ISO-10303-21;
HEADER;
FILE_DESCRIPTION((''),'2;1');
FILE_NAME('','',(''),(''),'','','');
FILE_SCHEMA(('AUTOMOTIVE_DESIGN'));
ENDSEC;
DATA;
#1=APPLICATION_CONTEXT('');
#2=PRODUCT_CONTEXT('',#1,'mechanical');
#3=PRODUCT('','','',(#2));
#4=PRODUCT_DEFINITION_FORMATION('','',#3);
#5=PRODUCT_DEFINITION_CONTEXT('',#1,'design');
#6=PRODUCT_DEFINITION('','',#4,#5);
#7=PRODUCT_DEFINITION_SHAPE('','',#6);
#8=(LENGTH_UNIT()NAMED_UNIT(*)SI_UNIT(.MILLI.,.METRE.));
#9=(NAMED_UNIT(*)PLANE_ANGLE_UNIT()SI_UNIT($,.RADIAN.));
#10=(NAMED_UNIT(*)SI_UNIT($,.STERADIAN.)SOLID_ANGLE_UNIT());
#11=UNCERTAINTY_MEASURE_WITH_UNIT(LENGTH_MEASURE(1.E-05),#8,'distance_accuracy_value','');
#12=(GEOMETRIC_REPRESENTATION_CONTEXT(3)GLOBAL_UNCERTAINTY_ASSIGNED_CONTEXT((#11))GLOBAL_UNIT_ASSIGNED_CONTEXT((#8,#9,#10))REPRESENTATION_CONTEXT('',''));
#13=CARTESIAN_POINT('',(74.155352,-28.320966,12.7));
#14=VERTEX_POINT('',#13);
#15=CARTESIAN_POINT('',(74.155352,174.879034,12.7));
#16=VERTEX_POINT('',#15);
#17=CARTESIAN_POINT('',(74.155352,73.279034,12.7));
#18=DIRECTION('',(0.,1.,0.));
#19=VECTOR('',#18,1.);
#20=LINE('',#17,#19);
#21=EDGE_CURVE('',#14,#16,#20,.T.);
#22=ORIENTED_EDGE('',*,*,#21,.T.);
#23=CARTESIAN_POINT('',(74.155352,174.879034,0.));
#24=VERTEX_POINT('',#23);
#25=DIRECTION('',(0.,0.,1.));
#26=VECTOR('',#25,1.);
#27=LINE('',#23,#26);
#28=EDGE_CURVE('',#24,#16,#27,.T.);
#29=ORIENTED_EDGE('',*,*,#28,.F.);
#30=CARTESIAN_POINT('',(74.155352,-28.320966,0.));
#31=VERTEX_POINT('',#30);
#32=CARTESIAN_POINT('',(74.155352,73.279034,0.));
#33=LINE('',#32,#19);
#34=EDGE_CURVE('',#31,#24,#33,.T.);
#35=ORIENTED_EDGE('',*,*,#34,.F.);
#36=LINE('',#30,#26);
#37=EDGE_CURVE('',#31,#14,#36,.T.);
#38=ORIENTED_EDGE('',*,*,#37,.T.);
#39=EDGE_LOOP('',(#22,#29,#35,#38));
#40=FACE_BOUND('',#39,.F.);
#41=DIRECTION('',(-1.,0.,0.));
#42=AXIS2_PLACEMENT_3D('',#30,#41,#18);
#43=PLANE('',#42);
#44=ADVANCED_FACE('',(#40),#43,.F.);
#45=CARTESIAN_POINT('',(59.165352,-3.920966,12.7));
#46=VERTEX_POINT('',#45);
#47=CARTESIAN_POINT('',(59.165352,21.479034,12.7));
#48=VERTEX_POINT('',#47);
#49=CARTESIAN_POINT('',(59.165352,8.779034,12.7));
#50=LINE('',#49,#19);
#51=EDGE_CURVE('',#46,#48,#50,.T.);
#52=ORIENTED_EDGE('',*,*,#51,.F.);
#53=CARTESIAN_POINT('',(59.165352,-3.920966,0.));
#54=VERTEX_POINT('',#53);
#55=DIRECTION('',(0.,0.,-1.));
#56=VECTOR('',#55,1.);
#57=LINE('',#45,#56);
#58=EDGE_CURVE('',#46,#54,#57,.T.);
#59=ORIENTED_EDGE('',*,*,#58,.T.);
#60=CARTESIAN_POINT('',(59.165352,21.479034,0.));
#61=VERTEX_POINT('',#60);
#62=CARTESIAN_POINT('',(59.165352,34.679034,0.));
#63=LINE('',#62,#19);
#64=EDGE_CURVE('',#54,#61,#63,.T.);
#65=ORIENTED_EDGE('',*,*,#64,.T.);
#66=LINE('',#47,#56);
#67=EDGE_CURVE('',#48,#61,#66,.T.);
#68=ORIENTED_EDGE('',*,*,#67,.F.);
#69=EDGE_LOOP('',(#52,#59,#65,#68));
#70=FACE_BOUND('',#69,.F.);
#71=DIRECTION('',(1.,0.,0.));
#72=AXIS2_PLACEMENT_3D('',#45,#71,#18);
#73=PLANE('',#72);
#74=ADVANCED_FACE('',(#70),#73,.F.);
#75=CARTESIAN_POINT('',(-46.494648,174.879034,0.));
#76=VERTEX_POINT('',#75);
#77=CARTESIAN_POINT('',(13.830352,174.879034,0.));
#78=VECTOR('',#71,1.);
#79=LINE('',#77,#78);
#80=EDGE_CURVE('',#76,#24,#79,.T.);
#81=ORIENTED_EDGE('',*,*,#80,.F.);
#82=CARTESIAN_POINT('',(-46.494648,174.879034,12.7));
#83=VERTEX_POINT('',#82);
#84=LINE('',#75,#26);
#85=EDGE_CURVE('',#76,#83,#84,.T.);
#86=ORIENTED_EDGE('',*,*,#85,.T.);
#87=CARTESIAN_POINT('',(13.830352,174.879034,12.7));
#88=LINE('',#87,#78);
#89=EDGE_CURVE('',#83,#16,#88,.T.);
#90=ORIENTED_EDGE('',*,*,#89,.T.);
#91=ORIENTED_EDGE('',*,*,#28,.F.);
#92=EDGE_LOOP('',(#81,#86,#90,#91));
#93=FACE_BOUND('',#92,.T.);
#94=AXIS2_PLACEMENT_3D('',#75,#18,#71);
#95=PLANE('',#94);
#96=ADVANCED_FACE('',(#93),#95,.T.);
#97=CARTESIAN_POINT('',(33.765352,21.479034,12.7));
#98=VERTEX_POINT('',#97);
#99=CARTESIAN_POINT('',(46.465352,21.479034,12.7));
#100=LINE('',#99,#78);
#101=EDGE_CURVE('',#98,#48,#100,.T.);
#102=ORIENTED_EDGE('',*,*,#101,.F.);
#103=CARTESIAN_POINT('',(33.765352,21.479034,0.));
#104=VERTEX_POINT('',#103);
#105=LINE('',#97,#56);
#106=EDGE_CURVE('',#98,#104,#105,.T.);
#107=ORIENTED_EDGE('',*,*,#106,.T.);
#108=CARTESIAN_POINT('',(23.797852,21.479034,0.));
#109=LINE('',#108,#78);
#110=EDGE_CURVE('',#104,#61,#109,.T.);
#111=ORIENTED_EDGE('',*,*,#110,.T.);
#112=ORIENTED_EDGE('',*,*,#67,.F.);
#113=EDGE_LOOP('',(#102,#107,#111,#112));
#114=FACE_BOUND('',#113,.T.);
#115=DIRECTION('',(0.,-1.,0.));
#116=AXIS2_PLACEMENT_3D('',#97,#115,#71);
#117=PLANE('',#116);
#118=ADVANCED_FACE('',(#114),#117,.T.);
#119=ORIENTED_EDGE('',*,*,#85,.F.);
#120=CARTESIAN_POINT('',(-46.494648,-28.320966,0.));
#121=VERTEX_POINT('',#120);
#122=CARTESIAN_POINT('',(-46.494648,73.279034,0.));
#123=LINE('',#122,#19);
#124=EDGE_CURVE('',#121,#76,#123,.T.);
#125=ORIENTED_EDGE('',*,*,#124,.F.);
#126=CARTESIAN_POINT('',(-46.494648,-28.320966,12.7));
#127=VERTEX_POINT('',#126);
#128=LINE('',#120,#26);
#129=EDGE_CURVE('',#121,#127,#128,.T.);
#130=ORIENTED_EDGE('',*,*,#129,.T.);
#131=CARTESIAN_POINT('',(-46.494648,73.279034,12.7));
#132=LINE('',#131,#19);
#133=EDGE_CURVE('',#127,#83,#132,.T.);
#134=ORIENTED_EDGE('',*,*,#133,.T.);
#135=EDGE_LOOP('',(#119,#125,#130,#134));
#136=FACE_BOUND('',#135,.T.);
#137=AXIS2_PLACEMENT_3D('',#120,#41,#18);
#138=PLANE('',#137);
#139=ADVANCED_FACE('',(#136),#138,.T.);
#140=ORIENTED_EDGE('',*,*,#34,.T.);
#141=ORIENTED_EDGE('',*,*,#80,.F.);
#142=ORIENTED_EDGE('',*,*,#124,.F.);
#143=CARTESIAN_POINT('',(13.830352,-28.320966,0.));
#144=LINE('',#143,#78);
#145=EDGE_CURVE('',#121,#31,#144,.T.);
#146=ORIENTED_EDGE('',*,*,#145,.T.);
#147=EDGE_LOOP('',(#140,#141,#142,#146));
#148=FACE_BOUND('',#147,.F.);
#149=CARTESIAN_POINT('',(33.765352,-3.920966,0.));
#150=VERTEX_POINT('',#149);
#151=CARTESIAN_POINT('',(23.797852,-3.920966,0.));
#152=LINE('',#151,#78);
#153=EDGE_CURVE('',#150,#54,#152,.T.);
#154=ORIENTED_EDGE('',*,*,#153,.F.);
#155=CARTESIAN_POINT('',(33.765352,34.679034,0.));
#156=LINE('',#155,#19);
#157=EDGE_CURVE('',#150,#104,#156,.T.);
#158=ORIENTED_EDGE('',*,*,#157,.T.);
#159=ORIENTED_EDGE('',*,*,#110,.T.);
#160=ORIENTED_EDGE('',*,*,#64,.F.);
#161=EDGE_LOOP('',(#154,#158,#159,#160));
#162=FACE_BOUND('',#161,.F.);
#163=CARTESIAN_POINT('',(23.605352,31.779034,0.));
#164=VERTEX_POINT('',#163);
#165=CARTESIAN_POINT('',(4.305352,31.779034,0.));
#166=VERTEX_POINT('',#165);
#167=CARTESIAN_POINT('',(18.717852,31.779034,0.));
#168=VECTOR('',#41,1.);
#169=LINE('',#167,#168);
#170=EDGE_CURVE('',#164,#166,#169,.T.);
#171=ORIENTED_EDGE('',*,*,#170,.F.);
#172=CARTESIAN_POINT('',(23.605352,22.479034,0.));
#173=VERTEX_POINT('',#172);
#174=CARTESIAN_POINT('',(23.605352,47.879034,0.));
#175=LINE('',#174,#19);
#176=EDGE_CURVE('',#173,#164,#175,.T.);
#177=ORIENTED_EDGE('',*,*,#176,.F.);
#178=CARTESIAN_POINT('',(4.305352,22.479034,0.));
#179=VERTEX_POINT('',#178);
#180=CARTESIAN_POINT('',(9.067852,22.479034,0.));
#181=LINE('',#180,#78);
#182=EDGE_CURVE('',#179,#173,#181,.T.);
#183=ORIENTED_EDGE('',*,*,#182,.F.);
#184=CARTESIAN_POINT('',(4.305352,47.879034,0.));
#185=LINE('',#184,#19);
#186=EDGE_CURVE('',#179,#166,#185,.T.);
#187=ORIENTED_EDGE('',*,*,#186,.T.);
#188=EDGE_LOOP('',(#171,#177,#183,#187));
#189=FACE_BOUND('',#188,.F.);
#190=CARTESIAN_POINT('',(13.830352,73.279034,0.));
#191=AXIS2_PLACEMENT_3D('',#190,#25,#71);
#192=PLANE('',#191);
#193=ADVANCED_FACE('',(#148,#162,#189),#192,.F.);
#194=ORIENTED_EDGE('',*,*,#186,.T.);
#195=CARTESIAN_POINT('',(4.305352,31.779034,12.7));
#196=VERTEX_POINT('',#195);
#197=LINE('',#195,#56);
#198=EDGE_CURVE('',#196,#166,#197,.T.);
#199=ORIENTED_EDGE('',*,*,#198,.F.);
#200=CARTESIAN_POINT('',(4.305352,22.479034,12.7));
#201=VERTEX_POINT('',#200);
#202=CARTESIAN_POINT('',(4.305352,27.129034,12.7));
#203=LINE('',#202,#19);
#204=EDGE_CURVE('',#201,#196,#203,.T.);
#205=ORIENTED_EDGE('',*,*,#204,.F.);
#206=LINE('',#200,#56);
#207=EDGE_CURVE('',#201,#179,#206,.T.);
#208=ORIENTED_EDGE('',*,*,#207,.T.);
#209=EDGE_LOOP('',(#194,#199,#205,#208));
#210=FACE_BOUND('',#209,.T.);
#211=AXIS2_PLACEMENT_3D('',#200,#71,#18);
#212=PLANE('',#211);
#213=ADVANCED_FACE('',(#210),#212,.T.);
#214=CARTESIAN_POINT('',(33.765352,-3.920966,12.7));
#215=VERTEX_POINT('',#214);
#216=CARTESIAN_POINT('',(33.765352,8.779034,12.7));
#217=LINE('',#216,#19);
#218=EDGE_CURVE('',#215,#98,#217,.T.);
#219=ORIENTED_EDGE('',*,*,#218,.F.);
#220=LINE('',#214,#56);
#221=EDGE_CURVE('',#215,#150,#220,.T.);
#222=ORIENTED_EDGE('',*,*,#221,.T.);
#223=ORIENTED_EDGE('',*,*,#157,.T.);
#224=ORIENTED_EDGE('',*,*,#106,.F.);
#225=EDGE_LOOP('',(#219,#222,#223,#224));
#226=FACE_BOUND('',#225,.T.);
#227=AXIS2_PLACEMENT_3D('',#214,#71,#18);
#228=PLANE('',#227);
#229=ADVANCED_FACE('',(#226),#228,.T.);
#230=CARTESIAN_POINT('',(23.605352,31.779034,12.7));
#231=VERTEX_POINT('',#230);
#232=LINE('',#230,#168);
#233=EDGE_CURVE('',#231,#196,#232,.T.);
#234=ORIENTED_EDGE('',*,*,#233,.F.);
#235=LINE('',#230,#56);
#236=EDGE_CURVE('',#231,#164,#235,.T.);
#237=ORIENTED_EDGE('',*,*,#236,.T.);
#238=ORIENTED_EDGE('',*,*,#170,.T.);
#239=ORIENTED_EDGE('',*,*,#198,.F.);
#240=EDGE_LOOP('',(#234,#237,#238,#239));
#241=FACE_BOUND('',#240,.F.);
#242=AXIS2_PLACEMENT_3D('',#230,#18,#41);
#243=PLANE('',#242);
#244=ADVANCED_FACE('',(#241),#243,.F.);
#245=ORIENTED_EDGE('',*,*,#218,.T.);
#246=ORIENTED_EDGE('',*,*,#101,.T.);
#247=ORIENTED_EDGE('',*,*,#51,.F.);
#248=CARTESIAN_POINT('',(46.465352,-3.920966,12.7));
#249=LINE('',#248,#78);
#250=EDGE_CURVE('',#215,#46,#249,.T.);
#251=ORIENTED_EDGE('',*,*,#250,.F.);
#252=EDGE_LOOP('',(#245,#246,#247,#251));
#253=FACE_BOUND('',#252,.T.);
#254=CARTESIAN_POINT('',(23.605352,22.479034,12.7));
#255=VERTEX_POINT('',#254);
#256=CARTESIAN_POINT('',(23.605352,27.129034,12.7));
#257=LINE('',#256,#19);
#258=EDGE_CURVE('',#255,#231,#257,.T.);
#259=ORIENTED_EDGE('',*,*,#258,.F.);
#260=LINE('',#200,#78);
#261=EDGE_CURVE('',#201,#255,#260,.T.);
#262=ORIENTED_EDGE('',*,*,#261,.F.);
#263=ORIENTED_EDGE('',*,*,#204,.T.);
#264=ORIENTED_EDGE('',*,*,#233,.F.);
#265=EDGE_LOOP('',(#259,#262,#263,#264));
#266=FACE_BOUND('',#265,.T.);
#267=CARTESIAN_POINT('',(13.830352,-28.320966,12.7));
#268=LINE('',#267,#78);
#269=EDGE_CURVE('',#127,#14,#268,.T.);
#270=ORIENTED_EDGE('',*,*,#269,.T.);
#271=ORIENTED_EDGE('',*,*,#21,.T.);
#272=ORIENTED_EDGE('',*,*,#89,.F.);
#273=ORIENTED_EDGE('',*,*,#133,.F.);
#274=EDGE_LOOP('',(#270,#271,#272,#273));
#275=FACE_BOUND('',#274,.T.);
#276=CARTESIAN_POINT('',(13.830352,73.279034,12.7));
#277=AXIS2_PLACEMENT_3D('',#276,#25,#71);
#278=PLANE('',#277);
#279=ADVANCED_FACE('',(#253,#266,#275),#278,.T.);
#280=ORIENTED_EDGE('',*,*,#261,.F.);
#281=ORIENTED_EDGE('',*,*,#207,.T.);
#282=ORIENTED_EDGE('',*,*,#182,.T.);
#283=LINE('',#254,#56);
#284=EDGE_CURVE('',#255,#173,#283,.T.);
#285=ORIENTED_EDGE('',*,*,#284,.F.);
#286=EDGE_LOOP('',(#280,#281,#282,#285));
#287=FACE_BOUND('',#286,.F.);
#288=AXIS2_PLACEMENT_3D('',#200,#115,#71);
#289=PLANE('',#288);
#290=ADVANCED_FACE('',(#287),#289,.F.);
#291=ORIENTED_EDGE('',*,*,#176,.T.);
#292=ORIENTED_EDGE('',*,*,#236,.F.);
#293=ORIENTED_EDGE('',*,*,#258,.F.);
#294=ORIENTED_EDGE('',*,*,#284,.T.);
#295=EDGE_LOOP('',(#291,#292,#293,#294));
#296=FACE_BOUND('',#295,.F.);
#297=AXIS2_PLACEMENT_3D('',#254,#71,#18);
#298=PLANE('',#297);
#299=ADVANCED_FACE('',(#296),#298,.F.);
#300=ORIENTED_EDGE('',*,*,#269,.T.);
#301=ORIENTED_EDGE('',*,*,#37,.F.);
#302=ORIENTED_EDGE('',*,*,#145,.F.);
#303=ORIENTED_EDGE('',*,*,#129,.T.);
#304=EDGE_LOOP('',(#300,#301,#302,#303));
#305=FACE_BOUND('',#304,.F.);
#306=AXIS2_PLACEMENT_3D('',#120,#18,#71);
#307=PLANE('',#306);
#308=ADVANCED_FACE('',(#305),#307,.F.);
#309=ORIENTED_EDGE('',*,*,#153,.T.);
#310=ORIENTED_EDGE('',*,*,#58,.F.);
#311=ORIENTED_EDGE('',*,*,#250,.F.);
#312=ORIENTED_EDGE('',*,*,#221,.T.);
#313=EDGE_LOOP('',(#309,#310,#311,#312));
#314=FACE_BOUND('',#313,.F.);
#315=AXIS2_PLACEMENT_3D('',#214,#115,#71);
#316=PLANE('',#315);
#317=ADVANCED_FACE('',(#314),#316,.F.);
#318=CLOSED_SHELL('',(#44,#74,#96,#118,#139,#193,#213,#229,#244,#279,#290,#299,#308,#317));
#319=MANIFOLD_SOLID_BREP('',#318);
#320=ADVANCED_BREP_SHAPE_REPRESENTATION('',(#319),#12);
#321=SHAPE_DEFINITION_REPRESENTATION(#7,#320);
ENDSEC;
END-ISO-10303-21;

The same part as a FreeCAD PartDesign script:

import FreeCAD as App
import Part
import Sketcher

V = App.Vector
Q = App.Units.Quantity

doc = App.newDocument("Part")
body = doc.addObject("PartDesign::Body", "Body")

# Sketch on XY plane
sketch1 = body.newObject("Sketcher::SketchObject", "Sketch")
sketch1.AttachmentSupport = (doc.getObject("XY_Plane"), [""])
sketch1.MapMode = "FlatFace"
sketch1.addGeometry([
    Part.LineSegment(V(-46, 175, 0), V(-46, -28, 0)),
    Part.LineSegment(V(-46, -28, 0), V(74, -28, 0)),
    Part.LineSegment(V(74, -28, 0), V(74, 175, 0)),
    Part.LineSegment(V(74, 175, 0), V(-46, 175, 0)),
], False)
sketch1.addConstraint([
    Sketcher.Constraint("Coincident", 0, 2, 1, 1),
    Sketcher.Constraint("Coincident", 1, 2, 2, 1),
    Sketcher.Constraint("Coincident", 2, 2, 3, 1),
    Sketcher.Constraint("Coincident", 3, 2, 0, 1),
    Sketcher.Constraint("Vertical", 0),
    Sketcher.Constraint("Horizontal", 1),
    Sketcher.Constraint("Vertical", 2),
    Sketcher.Constraint("Horizontal", 3),
    Sketcher.Constraint("DistanceY", 0, 2, 0, 1, Q("8 in")),
    Sketcher.Constraint("DistanceX", 1, 1, 1, 2, Q("4.75 in")),
    Sketcher.Constraint("DistanceX", -1, 1, 1, 2, 74.155352),
    Sketcher.Constraint("DistanceY", 0, 2, -1, 1, 28.320966),
])
pad1 = body.newObject("PartDesign::Pad", "Pad")
pad1.Profile = sketch1
pad1.Length = Q("0.5 in")

# Sketch on XY plane
sketch2 = body.newObject("Sketcher::SketchObject", "Sketch001")
sketch2.AttachmentSupport = (doc.getObject("XY_Plane"), [""])
sketch2.MapMode = "FlatFace"
sketch2.AttachmentOffset = App.Placement(V(0, 0, 0.5 * 25.4), App.Rotation())
sketch2.addGeometry([
    Part.LineSegment(V(4, 32, 0), V(4, 22, 0)),  # 0
    Part.LineSegment(V(4, 22, 0), V(24, 22, 0)),  # 1
    Part.LineSegment(V(24, 22, 0), V(24, 32, 0)),  # 2
    Part.LineSegment(V(24, 32, 0), V(4, 32, 0)),  # 3
    Part.LineSegment(V(34, 21, 0), V(34, -4, 0)),  # 4
    Part.LineSegment(V(34, -4, 0), V(59, -4, 0)),  # 5
    Part.LineSegment(V(59, -4, 0), V(59, 21, 0)),  # 6
    Part.LineSegment(V(59, 21, 0), V(34, 21, 0)),  # 7
], False)
sketch2.addConstraint([
    Sketcher.Constraint("Coincident", 0, 2, 1, 1),
    Sketcher.Constraint("Coincident", 1, 2, 2, 1),
    Sketcher.Constraint("Coincident", 2, 2, 3, 1),
    Sketcher.Constraint("Coincident", 3, 2, 0, 1),
    Sketcher.Constraint("Coincident", 4, 2, 5, 1),
    Sketcher.Constraint("Coincident", 5, 2, 6, 1),
    Sketcher.Constraint("Coincident", 6, 2, 7, 1),
    Sketcher.Constraint("Coincident", 7, 2, 4, 1),
    Sketcher.Constraint("Vertical", 0),
    Sketcher.Constraint("Horizontal", 1),
    Sketcher.Constraint("Vertical", 2),
    Sketcher.Constraint("Horizontal", 3),
    Sketcher.Constraint("Vertical", 4),
    Sketcher.Constraint("Horizontal", 5),
    Sketcher.Constraint("Vertical", 6),
    Sketcher.Constraint("Horizontal", 7),
    Sketcher.Constraint("Equal", 7, 4),
    Sketcher.Constraint("DistanceX", 5, 1, 5, 2, Q("1 in")),
    Sketcher.Constraint("DistanceX", 1, 2, 4, 2, Q("0.4 in")),
    Sketcher.Constraint("DistanceX", 1, 1, 1, 2, 19.3),
    Sketcher.Constraint("DistanceY", 0, 2, 0, 1, 9.3),
    Sketcher.Constraint("DistanceY", 4, 2, 1, 2, 26.4),
    Sketcher.Constraint("DistanceX", -1, 1, 1, 2, 23.605352),
    Sketcher.Constraint("DistanceY", -1, 1, 0, 2, 22.479034),
])
pocket1 = body.newObject("PartDesign::Pocket", "Pocket")
pocket1.Profile = sketch2
pocket1.Length = Q("1 in")

doc.recompute()
